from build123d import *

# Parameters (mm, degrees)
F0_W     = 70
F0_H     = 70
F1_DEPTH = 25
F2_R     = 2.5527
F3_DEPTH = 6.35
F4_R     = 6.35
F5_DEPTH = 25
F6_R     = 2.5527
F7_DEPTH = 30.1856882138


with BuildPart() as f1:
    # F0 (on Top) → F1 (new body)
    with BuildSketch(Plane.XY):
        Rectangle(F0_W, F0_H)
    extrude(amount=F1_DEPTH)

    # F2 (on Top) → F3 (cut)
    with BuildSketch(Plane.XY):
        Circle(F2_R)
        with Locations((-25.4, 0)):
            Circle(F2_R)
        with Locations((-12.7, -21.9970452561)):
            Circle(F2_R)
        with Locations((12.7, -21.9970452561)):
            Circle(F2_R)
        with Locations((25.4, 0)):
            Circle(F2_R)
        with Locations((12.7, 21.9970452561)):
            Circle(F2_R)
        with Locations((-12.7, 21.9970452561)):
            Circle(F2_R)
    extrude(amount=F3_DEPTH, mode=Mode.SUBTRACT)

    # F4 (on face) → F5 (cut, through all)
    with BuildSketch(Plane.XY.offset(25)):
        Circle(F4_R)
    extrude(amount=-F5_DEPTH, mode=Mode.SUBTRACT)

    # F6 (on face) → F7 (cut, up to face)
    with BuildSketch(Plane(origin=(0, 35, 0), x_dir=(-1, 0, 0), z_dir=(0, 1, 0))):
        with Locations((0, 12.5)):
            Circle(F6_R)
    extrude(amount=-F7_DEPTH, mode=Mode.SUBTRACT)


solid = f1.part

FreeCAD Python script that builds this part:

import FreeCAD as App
import Part
import Sketcher

V = App.Vector
Q = App.Units.Quantity

doc = App.newDocument("Part")
body = doc.addObject("PartDesign::Body", "Body")

# Sketch on XY plane
sketch1 = body.newObject("Sketcher::SketchObject", "Sketch")
sketch1.AttachmentSupport = (doc.getObject("XY_Plane"), [""])
sketch1.MapMode = "FlatFace"
sketch1.addGeometry([
    Part.LineSegment(V(-35, 35, 0), V(-35, -35, 0)),
    Part.LineSegment(V(-35, -35, 0), V(35, -35, 0)),
    Part.LineSegment(V(35, -35, 0), V(35, 35, 0)),
    Part.LineSegment(V(35, 35, 0), V(-35, 35, 0)),
], False)
sketch1.addConstraint([
    Sketcher.Constraint("Coincident", 0, 2, 1, 1),
    Sketcher.Constraint("Coincident", 1, 2, 2, 1),
    Sketcher.Constraint("Coincident", 2, 2, 3, 1),
    Sketcher.Constraint("Coincident", 3, 2, 0, 1),
    Sketcher.Constraint("Vertical", 0),
    Sketcher.Constraint("Horizontal", 1),
    Sketcher.Constraint("Vertical", 2),
    Sketcher.Constraint("Horizontal", 3),
    Sketcher.Constraint("Symmetric", 0, 2, 2, 2, -1, 1),
    Sketcher.Constraint("Equal", 3, 0),
    Sketcher.Constraint("DistanceX", 1, 1, 1, 2, Q("70 mm")),
])
pad1 = body.newObject("PartDesign::Pad", "Pad")
pad1.Profile = sketch1
pad1.Length = 25

# Sketch on XY plane
sketch2 = body.newObject("Sketcher::SketchObject", "Sketch001")
sketch2.AttachmentSupport = (doc.getObject("XY_Plane"), [""])
sketch2.MapMode = "FlatFace"
sketch2.addGeometry([
    Part.Circle(V(0, 0, 0), V(0, 0, 1), 2.6),  # 0
    Part.Circle(V(-25.4, 0, 0), V(0, 0, 1), 2.6),  # 1
    Part.Circle(V(-12.7, -22, 0), V(0, 0, 1), 2.6),  # 2
    Part.Circle(V(12.7, -22, 0), V(0, 0, 1), 2.6),  # 3
    Part.Circle(V(25.4, 0, 0), V(0, 0, 1), 2.6),  # 4
    Part.Circle(V(12.7, 22, 0), V(0, 0, 1), 2.6),  # 5
    Part.Circle(V(-12.7, 22, 0), V(0, 0, 1), 2.6),  # 6
], False)
sketch2.addConstraint([
    Sketcher.Constraint("Coincident", 0, 3, -1, 1),
    Sketcher.Constraint("Equal", 0, 1),
    Sketcher.Constraint("Equal", 1, 2),
    Sketcher.Constraint("Equal", 2, 3),
    Sketcher.Constraint("Equal", 3, 4),
    Sketcher.Constraint("Equal", 4, 5),
    Sketcher.Constraint("Equal", 5, 6),
    Sketcher.Constraint("Symmetric", 1, 3, 4, 3, -1, 1),
    Sketcher.Constraint("Symmetric", 2, 3, 5, 3, -1, 1),
    Sketcher.Constraint("Symmetric", 3, 3, 6, 3, -1, 1),
    Sketcher.Constraint("Symmetric", 2, 3, 3, 3, -2),
    Sketcher.Constraint("PointOnObject", 1, 3, -1),
    Sketcher.Constraint("Diameter", 0, Q("0.201 in")),
    Sketcher.Constraint("DistanceX", 1, 3, -1, 1, Q("1 in")),
    Sketcher.Constraint("DistanceX", 2, 3, 3, 3, Q("1 in")),
    Sketcher.Constraint("DistanceY", 3, 3, 5, 3, Q("43.994091 mm")),
])
pocket1 = body.newObject("PartDesign::Pocket", "Pocket")
pocket1.Profile = sketch2
pocket1.Length = Q("0.25 in")
pocket1.Reversed = True

# Sketch on XY plane
sketch3 = body.newObject("Sketcher::SketchObject", "Sketch002")
sketch3.AttachmentSupport = (doc.getObject("XY_Plane"), [""])
sketch3.MapMode = "FlatFace"
sketch3.AttachmentOffset = App.Placement(V(0, 0, 25), App.Rotation())
sketch3.addGeometry(Part.Circle(V(0, 0, 0), V(0, 0, 1), 6), False)
sketch3.addConstraint([
    Sketcher.Constraint("Coincident", 0, 3, -1, 1),
    Sketcher.Constraint("Diameter", 0, Q("0.5 in")),
])
pocket2 = body.newObject("PartDesign::Pocket", "Pocket001")
pocket2.Profile = sketch3
pocket2.Type = "ThroughAll"

# Sketch on XZ plane
sketch4 = body.newObject("Sketcher::SketchObject", "Sketch003")
sketch4.AttachmentSupport = (doc.getObject("XZ_Plane"), [""])
sketch4.MapMode = "FlatFace"
sketch4.AttachmentOffset = App.Placement(V(0, 0, -35), App.Rotation())
sketch4.addGeometry(Part.Circle(V(0, 12.5, 0), V(0, 0, 1), 2.6), False)
sketch4.addConstraint([
    Sketcher.Constraint("PointOnObject", 0, 3, -2),
    Sketcher.Constraint("Diameter", 0, Q("0.201 in")),
    Sketcher.Constraint("DistanceY", -1, 1, 0, 3, Q("12.5 mm")),
])
pocket3 = body.newObject("PartDesign::Pocket", "Pocket002")
pocket3.Profile = sketch4
pocket3.Length = 30.185688
pocket3.Reversed = True

doc.recompute()
